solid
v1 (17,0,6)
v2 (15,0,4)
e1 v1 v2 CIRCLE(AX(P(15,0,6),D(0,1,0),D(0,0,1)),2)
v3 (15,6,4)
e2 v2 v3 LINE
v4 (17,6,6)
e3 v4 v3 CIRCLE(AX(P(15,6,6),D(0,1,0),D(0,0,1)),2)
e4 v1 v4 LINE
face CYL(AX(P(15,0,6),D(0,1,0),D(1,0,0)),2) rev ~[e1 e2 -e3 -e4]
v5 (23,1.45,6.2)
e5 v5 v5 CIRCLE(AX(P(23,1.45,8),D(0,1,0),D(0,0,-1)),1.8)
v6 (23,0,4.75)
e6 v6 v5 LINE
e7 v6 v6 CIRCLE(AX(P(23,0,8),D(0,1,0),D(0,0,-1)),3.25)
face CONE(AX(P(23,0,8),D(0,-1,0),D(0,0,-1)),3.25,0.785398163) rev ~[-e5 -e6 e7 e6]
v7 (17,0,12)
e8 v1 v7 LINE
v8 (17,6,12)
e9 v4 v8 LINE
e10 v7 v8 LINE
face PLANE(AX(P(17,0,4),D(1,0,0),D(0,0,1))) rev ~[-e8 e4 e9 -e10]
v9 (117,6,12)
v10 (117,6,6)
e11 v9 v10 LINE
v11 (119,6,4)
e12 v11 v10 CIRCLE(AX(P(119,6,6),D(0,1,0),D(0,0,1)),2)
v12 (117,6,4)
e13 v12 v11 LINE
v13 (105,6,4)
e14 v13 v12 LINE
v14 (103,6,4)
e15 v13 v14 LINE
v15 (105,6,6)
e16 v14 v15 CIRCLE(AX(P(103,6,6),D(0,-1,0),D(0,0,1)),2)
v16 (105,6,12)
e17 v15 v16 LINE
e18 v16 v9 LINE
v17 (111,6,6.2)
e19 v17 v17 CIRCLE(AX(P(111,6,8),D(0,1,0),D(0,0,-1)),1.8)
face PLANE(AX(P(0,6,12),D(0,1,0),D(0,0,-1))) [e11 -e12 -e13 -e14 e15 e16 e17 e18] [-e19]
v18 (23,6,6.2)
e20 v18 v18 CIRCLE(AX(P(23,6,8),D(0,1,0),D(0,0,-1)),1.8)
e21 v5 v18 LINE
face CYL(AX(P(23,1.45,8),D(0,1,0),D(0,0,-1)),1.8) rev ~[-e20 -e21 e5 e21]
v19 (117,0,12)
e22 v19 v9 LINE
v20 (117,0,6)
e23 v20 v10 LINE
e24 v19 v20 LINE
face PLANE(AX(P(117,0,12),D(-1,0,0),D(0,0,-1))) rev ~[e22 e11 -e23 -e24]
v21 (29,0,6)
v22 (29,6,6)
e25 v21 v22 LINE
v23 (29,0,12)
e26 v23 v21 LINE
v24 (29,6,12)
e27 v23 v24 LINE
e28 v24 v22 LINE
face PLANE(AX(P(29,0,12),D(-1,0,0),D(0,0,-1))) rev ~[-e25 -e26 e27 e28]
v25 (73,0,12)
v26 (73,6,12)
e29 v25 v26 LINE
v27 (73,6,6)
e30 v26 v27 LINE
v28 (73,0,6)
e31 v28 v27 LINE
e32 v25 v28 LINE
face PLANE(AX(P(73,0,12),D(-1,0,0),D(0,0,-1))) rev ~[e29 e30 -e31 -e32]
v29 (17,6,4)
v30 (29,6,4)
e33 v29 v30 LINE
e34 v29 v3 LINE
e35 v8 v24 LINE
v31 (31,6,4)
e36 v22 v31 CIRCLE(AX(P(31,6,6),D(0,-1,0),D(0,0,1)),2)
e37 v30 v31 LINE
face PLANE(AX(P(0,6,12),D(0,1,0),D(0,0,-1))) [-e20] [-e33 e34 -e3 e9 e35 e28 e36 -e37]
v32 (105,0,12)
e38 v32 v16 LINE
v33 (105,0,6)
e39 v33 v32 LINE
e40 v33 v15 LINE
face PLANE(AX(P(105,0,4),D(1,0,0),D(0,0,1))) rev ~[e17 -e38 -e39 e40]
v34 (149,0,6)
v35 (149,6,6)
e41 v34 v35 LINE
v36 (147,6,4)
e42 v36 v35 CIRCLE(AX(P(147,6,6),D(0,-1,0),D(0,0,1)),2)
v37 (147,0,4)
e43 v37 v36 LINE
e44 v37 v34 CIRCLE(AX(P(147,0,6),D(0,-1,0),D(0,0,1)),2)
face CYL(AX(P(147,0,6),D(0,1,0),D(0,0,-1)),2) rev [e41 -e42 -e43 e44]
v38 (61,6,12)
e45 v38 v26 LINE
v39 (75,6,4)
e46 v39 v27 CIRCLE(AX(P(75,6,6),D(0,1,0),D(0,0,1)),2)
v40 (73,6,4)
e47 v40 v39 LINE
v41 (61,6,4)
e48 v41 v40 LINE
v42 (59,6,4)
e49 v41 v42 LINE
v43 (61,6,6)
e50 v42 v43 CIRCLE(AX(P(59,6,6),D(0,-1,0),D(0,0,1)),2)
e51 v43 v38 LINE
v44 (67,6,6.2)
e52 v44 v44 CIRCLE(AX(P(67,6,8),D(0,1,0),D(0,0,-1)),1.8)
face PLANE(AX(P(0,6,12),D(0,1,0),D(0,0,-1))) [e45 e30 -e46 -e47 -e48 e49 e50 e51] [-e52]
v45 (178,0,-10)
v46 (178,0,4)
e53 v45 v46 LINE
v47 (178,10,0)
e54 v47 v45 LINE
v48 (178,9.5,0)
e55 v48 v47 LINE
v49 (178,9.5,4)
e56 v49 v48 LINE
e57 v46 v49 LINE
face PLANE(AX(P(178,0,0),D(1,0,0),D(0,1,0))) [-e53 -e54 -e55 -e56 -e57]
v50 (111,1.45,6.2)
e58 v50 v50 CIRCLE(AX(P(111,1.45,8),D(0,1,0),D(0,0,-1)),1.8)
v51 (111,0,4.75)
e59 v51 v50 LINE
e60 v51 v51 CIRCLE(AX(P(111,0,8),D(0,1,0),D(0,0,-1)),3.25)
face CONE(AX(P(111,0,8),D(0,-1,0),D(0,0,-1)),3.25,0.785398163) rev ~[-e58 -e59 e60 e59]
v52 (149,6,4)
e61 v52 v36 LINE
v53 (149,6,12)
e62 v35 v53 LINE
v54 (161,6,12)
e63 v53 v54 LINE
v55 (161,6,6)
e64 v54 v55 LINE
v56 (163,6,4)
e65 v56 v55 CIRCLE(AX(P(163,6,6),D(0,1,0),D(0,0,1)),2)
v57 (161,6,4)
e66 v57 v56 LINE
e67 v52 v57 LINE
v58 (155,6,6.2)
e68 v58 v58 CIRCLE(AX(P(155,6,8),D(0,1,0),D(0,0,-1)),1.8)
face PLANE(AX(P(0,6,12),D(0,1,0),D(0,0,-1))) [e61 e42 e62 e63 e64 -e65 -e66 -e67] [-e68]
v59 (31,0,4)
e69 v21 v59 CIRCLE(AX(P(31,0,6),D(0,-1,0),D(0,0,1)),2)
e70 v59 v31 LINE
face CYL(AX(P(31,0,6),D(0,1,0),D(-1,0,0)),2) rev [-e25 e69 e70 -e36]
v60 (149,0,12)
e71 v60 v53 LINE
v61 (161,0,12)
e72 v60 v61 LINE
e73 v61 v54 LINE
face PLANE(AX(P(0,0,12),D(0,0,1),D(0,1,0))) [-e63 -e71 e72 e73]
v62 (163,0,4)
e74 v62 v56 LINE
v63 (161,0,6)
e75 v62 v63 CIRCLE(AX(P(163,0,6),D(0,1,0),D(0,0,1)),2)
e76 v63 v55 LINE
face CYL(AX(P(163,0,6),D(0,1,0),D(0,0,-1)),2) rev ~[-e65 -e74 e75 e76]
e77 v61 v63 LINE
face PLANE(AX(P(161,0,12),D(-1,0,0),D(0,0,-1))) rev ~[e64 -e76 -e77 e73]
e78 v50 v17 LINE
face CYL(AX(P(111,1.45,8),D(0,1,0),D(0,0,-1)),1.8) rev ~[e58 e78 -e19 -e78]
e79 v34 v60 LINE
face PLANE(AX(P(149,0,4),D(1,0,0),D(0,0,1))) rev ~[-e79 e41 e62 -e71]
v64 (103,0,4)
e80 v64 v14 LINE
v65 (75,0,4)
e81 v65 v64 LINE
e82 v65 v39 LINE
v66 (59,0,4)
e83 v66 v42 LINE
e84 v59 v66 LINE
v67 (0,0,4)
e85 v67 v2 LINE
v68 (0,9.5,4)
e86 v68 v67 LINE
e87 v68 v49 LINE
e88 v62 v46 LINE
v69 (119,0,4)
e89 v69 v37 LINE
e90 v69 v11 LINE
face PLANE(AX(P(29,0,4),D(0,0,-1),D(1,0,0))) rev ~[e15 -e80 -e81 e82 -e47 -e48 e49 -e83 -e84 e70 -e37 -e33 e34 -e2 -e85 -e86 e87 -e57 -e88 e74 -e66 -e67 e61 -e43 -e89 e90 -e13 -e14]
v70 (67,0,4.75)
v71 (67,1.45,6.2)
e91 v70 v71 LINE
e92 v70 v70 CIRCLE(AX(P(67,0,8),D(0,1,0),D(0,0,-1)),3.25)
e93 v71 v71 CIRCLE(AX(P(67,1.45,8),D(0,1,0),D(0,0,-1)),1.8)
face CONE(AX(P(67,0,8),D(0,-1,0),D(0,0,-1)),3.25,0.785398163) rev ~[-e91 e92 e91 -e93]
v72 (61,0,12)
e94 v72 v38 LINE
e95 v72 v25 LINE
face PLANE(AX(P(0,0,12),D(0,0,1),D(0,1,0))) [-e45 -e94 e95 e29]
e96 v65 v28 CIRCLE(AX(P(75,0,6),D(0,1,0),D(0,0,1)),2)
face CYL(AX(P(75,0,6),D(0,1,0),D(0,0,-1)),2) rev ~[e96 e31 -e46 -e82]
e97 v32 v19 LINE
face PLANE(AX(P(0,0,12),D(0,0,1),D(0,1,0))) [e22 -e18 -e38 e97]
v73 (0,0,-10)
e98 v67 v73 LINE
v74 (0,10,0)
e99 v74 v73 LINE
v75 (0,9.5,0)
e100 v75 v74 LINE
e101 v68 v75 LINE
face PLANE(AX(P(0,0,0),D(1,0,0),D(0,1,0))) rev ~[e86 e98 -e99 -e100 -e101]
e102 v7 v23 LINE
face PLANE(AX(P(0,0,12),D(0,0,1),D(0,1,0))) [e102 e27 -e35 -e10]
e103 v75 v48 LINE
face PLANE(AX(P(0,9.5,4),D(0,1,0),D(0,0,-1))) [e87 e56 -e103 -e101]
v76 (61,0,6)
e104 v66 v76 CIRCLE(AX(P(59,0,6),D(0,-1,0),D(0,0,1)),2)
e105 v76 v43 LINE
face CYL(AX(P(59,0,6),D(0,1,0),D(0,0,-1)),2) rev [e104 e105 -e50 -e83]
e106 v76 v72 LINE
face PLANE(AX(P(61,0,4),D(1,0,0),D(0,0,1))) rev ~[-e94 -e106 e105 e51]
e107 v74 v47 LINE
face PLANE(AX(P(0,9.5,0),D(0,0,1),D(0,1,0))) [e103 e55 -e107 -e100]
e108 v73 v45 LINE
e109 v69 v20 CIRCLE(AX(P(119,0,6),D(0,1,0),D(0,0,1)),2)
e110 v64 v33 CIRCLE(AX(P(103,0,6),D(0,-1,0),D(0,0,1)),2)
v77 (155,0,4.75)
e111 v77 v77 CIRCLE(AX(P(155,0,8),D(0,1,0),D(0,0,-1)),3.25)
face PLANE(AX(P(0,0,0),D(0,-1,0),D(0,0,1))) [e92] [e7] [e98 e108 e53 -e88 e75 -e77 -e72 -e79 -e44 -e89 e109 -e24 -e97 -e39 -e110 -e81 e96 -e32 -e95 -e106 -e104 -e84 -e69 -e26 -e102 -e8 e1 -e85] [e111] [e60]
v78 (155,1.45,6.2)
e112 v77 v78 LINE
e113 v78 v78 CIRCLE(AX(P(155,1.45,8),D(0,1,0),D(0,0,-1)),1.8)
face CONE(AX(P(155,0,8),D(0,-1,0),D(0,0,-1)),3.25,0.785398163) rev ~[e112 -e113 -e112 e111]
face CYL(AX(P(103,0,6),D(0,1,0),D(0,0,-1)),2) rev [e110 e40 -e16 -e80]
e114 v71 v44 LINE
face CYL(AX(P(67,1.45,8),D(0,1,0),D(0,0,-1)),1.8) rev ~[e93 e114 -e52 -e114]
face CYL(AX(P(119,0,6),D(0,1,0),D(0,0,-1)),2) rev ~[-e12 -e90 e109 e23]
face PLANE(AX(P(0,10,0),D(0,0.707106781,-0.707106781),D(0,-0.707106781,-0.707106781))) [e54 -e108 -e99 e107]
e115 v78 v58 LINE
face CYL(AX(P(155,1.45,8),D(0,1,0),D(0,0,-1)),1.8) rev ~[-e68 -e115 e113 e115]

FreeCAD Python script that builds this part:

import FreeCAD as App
import Part
import Sketcher

V = App.Vector
Q = App.Units.Quantity


def edges_at(feature, points):
    """Names of the edges that pass closest to the given points."""
    edges = feature.Shape.Edges
    near = lambda p: min(range(len(edges)), key=lambda i: edges[i].distToShape(Part.Vertex(*p))[0])
    return sorted({f"Edge{near(p) + 1}" for p in points})

doc = App.newDocument("Part")
params = doc.addObject("Spreadsheet::Sheet", "Params")
for row, (alias, value) in enumerate([
    ("sketch1_width", "6 mm"),
    ("sketch1_height", "4 mm"),
    ("sketch1_width2", "0.5 mm"),
    ("sketch1_width3", "3.5 mm"),
    ("pad1_length", "178 mm"),
    ("sketch2_width", "17 mm"),
    ("sketch2_width2", "32 mm"),
    ("sketch2_height", "8 mm"),
    ("sketch3_diameter", "3.6 mm"),
    ("hole_diameter", "3.6 mm"),
    ("hole_csink_diameter", "6.5 mm"),
    ("fillet_radius", "2 mm"),
], start=1):
    params.set(f"A{row}", alias)
    params.set(f"B{row}", "=" + value)
    params.setAlias(f"B{row}", alias)

body = doc.addObject("PartDesign::Body", "Body")

# Sketch on YZ plane
sketch1 = body.newObject("Sketcher::SketchObject", "Sketch")
sketch1.AttachmentSupport = (doc.getObject("YZ_Plane"), [""])
sketch1.MapMode = "FlatFace"
sketch1.addGeometry([
    Part.LineSegment(V(0, 12, 0), V(0, -10, 0)),  # 0
    Part.LineSegment(V(0, -10, 0), V(10, 0, 0)),  # 1
    Part.LineSegment(V(10, 0, 0), V(9.5, 0, 0)),  # 2
    Part.LineSegment(V(9.5, 0, 0), V(9.5, 4, 0)),  # 3
    Part.LineSegment(V(9.5, 4, 0), V(6, 4, 0)),  # 4
    Part.LineSegment(V(6, 4, 0), V(6, 12, 0)),  # 5
    Part.LineSegment(V(6, 12, 0), V(0, 12, 0)),  # 6
], False)
sketch1.addConstraint([
    Sketcher.Constraint("Coincident", 0, 2, 1, 1),
    Sketcher.Constraint("Coincident", 1, 2, 2, 1),
    Sketcher.Constraint("Coincident", 2, 2, 3, 1),
    Sketcher.Constraint("Coincident", 3, 2, 4, 1),
    Sketcher.Constraint("Coincident", 4, 2, 5, 1),
    Sketcher.Constraint("Coincident", 5, 2, 6, 1),
    Sketcher.Constraint("Coincident", 6, 2, 0, 1),
    Sketcher.Constraint("Vertical", 0),
    Sketcher.Constraint("Horizontal", 2),
    Sketcher.Constraint("Vertical", 3),
    Sketcher.Constraint("Horizontal", 4),
    Sketcher.Constraint("Vertical", 5),
    Sketcher.Constraint("Horizontal", 6),
    Sketcher.Constraint("PointOnObject", 0, 2, -2),
    Sketcher.Constraint("PointOnObject", 1, 2, -1),
    Sketcher.Constraint("DistanceX", 6, 2, 6, 1, 6.0),
    Sketcher.Constraint("DistanceY", 3, 1, 3, 2, 4.0),
    Sketcher.Constraint("Angle", 1, Q("45 deg")),
    Sketcher.Constraint("DistanceX", 2, 2, 2, 1, 0.5),
    Sketcher.Constraint("DistanceX", 4, 2, 4, 1, 3.5),
    Sketcher.Constraint("DistanceY", -1, 1, 5, 2, 12.0),
])
sketch1.setExpression("Constraints[15]", "Params.sketch1_width")
sketch1.setExpression("Constraints[16]", "Params.sketch1_height")
sketch1.setExpression("Constraints[18]", "Params.sketch1_width2")
sketch1.setExpression("Constraints[19]", "Params.sketch1_width3")
pad1 = body.newObject("PartDesign::Pad", "Pad")
pad1.Profile = sketch1
pad1.setExpression("Length", "Params.pad1_length")

# Sketch on XZ plane
sketch2 = body.newObject("Sketcher::SketchObject", "Sketch001")
sketch2.AttachmentSupport = (doc.getObject("XZ_Plane"), [""])
sketch2.MapMode = "FlatFace"
sketch2.addGeometry([
    Part.LineSegment(V(0, 12, 0), V(0, 4, 0)),  # 0
    Part.LineSegment(V(0, 4, 0), V(17, 4, 0)),  # 1
    Part.LineSegment(V(17, 4, 0), V(17, 12, 0)),  # 2
    Part.LineSegment(V(17, 12, 0), V(0, 12, 0)),  # 3
    Part.LineSegment(V(29, 12, 0), V(29, 4, 0)),  # 4
    Part.LineSegment(V(29, 4, 0), V(61, 4, 0)),  # 5
    Part.LineSegment(V(61, 4, 0), V(61, 12, 0)),  # 6
    Part.LineSegment(V(61, 12, 0), V(29, 12, 0)),  # 7
    Part.LineSegment(V(73, 12, 0), V(73, 4, 0)),  # 8
    Part.LineSegment(V(73, 4, 0), V(105, 4, 0)),  # 9
    Part.LineSegment(V(105, 4, 0), V(105, 12, 0)),  # 10
    Part.LineSegment(V(105, 12, 0), V(73, 12, 0)),  # 11
    Part.LineSegment(V(117, 12, 0), V(117, 4, 0)),  # 12
    Part.LineSegment(V(117, 4, 0), V(149, 4, 0)),  # 13
    Part.LineSegment(V(149, 4, 0), V(149, 12, 0)),  # 14
    Part.LineSegment(V(149, 12, 0), V(117, 12, 0)),  # 15
    Part.LineSegment(V(161, 12, 0), V(161, 4, 0)),  # 16
    Part.LineSegment(V(161, 4, 0), V(178, 4, 0)),  # 17
    Part.LineSegment(V(178, 4, 0), V(178, 12, 0)),  # 18
    Part.LineSegment(V(178, 12, 0), V(161, 12, 0)),  # 19
], False)
sketch2.addConstraint([
    Sketcher.Constraint("Coincident", 0, 2, 1, 1),
    Sketcher.Constraint("Coincident", 1, 2, 2, 1),
    Sketcher.Constraint("Coincident", 2, 2, 3, 1),
    Sketcher.Constraint("Coincident", 3, 2, 0, 1),
    Sketcher.Constraint("Coincident", 4, 2, 5, 1),
    Sketcher.Constraint("Coincident", 5, 2, 6, 1),
    Sketcher.Constraint("Coincident", 6, 2, 7, 1),
    Sketcher.Constraint("Coincident", 7, 2, 4, 1),
    Sketcher.Constraint("Coincident", 8, 2, 9, 1),
    Sketcher.Constraint("Coincident", 9, 2, 10, 1),
    Sketcher.Constraint("Coincident", 10, 2, 11, 1),
    Sketcher.Constraint("Coincident", 11, 2, 8, 1),
    Sketcher.Constraint("Coincident", 12, 2, 13, 1),
    Sketcher.Constraint("Coincident", 13, 2, 14, 1),
    Sketcher.Constraint("Coincident", 14, 2, 15, 1),
    Sketcher.Constraint("Coincident", 15, 2, 12, 1),
    Sketcher.Constraint("Coincident", 16, 2, 17, 1),
    Sketcher.Constraint("Coincident", 17, 2, 18, 1),
    Sketcher.Constraint("Coincident", 18, 2, 19, 1),
    Sketcher.Constraint("Coincident", 19, 2, 16, 1),
    Sketcher.Constraint("Vertical", 0),
    Sketcher.Constraint("Horizontal", 1),
    Sketcher.Constraint("Vertical", 2),
    Sketcher.Constraint("Horizontal", 3),
    Sketcher.Constraint("Vertical", 4),
    Sketcher.Constraint("Horizontal", 5),
    Sketcher.Constraint("Vertical", 6),
    Sketcher.Constraint("Horizontal", 7),
    Sketcher.Constraint("Vertical", 8),
    Sketcher.Constraint("Horizontal", 9),
    Sketcher.Constraint("Vertical", 10),
    Sketcher.Constraint("Horizontal", 11),
    Sketcher.Constraint("Vertical", 12),
    Sketcher.Constraint("Horizontal", 13),
    Sketcher.Constraint("Vertical", 14),
    Sketcher.Constraint("Horizontal", 15),
    Sketcher.Constraint("Vertical", 16),
    Sketcher.Constraint("Horizontal", 17),
    Sketcher.Constraint("Vertical", 18),
    Sketcher.Constraint("Horizontal", 19),
    Sketcher.Constraint("PointOnObject", 0, 2, -2),
    Sketcher.Constraint("Horizontal", 1, 2, 4, 2),
    Sketcher.Constraint("Horizontal", 3, 2, 6, 2),
    Sketcher.Constraint("Horizontal", 5, 2, 8, 2),
    Sketcher.Constraint("Horizontal", 7, 2, 10, 2),
    Sketcher.Constraint("Horizontal", 9, 2, 12, 2),
    Sketcher.Constraint("Horizontal", 11, 2, 14, 2),
    Sketcher.Constraint("Horizontal", 13, 2, 16, 2),
    Sketcher.Constraint("Horizontal", 15, 2, 18, 2),
    Sketcher.Constraint("Equal", 7, 9),
    Sketcher.Constraint("Equal", 11, 13),
    Sketcher.Constraint("Equal", 3, 17),
    Sketcher.Constraint("DistanceX", 1, 1, 1, 2, 17.0),
    Sketcher.Constraint("DistanceX", 5, 1, 5, 2, 32.0),
    Sketcher.Constraint("DistanceY", -1, 1, 2, 2, 12.0),
    Sketcher.Constraint("DistanceX", 1, 2, 4, 2, 12.0),
    Sketcher.Constraint("DistanceX", 5, 2, 8, 2, 12.0),
    Sketcher.Constraint("DistanceX", 9, 2, 12, 2, 12.0),
    Sketcher.Constraint("DistanceX", 13, 2, 16, 2, 12.0),
    Sketcher.Constraint("DistanceY", 0, 2, 0, 1, 8.0),
])
sketch2.setExpression("Constraints[52]", "Params.sketch2_width")
sketch2.setExpression("Constraints[53]", "Params.sketch2_width2")
sketch2.setExpression("Constraints[59]", "Params.sketch2_height")
pocket1 = body.newObject("PartDesign::Pocket", "Pocket")
pocket1.Profile = sketch2
pocket1.Type = "UpToFirst"

# Sketch on XZ plane
sketch3 = body.newObject("Sketcher::SketchObject", "Sketch002")
sketch3.AttachmentSupport = (doc.getObject("XZ_Plane"), [""])
sketch3.MapMode = "FlatFace"
sketch3.addGeometry([
    Part.Circle(V(23, 8, 0), V(0, 0, 1), 1.8),
    Part.Circle(V(67, 8, 0), V(0, 0, 1), 1.8),
    Part.Circle(V(111, 8, 0), V(0, 0, 1), 1.8),
    Part.Circle(V(155, 8, 0), V(0, 0, 1), 1.8),
], False)
sketch3.addConstraint([
    Sketcher.Constraint("Equal", 0, 1),
    Sketcher.Constraint("Equal", 1, 2),
    Sketcher.Constraint("Equal", 2, 3),
    Sketcher.Constraint("Horizontal", 0, 3, 1, 3),
    Sketcher.Constraint("Horizontal", 1, 3, 2, 3),
    Sketcher.Constraint("Horizontal", 2, 3, 3, 3),
    Sketcher.Constraint("Diameter", 0, 3.6),
    Sketcher.Constraint("DistanceX", -1, 1, 0, 3, 23.0),
    Sketcher.Constraint("DistanceY", -1, 1, 0, 3, 8.0),
    Sketcher.Constraint("DistanceX", -1, 1, 1, 3, 67.0),
    Sketcher.Constraint("DistanceX", -1, 1, 2, 3, 111.0),
    Sketcher.Constraint("DistanceX", -1, 1, 3, 3, 155.0),
])
sketch3.setExpression("Constraints[6]", "Params.sketch3_diameter")
doc.recompute()
hole = body.newObject("PartDesign::Hole", "Hole")
hole.Profile = sketch3
hole.ThreadType = "None"
hole.setExpression("Diameter", "Params.hole_diameter")
hole.DepthType = "ThroughAll"
hole.HoleCutType = "Countersink"
hole.setExpression("HoleCutDiameter", "Params.hole_csink_diameter")
hole.HoleCutCountersinkAngle = 90
doc.recompute()

fillet = body.newObject("PartDesign::Fillet", "Fillet")
fillet.Base = (hole, edges_at(hole, [
    (17, 3, 4),
    (29, 3, 4),
    (61, 3, 4),
    (73, 3, 4),
    (105, 3, 4),
    (117, 3, 4),
    (149, 3, 4),
    (161, 3, 4),
]))
fillet.setExpression("Radius", "Params.fillet_radius")

doc.recompute()
